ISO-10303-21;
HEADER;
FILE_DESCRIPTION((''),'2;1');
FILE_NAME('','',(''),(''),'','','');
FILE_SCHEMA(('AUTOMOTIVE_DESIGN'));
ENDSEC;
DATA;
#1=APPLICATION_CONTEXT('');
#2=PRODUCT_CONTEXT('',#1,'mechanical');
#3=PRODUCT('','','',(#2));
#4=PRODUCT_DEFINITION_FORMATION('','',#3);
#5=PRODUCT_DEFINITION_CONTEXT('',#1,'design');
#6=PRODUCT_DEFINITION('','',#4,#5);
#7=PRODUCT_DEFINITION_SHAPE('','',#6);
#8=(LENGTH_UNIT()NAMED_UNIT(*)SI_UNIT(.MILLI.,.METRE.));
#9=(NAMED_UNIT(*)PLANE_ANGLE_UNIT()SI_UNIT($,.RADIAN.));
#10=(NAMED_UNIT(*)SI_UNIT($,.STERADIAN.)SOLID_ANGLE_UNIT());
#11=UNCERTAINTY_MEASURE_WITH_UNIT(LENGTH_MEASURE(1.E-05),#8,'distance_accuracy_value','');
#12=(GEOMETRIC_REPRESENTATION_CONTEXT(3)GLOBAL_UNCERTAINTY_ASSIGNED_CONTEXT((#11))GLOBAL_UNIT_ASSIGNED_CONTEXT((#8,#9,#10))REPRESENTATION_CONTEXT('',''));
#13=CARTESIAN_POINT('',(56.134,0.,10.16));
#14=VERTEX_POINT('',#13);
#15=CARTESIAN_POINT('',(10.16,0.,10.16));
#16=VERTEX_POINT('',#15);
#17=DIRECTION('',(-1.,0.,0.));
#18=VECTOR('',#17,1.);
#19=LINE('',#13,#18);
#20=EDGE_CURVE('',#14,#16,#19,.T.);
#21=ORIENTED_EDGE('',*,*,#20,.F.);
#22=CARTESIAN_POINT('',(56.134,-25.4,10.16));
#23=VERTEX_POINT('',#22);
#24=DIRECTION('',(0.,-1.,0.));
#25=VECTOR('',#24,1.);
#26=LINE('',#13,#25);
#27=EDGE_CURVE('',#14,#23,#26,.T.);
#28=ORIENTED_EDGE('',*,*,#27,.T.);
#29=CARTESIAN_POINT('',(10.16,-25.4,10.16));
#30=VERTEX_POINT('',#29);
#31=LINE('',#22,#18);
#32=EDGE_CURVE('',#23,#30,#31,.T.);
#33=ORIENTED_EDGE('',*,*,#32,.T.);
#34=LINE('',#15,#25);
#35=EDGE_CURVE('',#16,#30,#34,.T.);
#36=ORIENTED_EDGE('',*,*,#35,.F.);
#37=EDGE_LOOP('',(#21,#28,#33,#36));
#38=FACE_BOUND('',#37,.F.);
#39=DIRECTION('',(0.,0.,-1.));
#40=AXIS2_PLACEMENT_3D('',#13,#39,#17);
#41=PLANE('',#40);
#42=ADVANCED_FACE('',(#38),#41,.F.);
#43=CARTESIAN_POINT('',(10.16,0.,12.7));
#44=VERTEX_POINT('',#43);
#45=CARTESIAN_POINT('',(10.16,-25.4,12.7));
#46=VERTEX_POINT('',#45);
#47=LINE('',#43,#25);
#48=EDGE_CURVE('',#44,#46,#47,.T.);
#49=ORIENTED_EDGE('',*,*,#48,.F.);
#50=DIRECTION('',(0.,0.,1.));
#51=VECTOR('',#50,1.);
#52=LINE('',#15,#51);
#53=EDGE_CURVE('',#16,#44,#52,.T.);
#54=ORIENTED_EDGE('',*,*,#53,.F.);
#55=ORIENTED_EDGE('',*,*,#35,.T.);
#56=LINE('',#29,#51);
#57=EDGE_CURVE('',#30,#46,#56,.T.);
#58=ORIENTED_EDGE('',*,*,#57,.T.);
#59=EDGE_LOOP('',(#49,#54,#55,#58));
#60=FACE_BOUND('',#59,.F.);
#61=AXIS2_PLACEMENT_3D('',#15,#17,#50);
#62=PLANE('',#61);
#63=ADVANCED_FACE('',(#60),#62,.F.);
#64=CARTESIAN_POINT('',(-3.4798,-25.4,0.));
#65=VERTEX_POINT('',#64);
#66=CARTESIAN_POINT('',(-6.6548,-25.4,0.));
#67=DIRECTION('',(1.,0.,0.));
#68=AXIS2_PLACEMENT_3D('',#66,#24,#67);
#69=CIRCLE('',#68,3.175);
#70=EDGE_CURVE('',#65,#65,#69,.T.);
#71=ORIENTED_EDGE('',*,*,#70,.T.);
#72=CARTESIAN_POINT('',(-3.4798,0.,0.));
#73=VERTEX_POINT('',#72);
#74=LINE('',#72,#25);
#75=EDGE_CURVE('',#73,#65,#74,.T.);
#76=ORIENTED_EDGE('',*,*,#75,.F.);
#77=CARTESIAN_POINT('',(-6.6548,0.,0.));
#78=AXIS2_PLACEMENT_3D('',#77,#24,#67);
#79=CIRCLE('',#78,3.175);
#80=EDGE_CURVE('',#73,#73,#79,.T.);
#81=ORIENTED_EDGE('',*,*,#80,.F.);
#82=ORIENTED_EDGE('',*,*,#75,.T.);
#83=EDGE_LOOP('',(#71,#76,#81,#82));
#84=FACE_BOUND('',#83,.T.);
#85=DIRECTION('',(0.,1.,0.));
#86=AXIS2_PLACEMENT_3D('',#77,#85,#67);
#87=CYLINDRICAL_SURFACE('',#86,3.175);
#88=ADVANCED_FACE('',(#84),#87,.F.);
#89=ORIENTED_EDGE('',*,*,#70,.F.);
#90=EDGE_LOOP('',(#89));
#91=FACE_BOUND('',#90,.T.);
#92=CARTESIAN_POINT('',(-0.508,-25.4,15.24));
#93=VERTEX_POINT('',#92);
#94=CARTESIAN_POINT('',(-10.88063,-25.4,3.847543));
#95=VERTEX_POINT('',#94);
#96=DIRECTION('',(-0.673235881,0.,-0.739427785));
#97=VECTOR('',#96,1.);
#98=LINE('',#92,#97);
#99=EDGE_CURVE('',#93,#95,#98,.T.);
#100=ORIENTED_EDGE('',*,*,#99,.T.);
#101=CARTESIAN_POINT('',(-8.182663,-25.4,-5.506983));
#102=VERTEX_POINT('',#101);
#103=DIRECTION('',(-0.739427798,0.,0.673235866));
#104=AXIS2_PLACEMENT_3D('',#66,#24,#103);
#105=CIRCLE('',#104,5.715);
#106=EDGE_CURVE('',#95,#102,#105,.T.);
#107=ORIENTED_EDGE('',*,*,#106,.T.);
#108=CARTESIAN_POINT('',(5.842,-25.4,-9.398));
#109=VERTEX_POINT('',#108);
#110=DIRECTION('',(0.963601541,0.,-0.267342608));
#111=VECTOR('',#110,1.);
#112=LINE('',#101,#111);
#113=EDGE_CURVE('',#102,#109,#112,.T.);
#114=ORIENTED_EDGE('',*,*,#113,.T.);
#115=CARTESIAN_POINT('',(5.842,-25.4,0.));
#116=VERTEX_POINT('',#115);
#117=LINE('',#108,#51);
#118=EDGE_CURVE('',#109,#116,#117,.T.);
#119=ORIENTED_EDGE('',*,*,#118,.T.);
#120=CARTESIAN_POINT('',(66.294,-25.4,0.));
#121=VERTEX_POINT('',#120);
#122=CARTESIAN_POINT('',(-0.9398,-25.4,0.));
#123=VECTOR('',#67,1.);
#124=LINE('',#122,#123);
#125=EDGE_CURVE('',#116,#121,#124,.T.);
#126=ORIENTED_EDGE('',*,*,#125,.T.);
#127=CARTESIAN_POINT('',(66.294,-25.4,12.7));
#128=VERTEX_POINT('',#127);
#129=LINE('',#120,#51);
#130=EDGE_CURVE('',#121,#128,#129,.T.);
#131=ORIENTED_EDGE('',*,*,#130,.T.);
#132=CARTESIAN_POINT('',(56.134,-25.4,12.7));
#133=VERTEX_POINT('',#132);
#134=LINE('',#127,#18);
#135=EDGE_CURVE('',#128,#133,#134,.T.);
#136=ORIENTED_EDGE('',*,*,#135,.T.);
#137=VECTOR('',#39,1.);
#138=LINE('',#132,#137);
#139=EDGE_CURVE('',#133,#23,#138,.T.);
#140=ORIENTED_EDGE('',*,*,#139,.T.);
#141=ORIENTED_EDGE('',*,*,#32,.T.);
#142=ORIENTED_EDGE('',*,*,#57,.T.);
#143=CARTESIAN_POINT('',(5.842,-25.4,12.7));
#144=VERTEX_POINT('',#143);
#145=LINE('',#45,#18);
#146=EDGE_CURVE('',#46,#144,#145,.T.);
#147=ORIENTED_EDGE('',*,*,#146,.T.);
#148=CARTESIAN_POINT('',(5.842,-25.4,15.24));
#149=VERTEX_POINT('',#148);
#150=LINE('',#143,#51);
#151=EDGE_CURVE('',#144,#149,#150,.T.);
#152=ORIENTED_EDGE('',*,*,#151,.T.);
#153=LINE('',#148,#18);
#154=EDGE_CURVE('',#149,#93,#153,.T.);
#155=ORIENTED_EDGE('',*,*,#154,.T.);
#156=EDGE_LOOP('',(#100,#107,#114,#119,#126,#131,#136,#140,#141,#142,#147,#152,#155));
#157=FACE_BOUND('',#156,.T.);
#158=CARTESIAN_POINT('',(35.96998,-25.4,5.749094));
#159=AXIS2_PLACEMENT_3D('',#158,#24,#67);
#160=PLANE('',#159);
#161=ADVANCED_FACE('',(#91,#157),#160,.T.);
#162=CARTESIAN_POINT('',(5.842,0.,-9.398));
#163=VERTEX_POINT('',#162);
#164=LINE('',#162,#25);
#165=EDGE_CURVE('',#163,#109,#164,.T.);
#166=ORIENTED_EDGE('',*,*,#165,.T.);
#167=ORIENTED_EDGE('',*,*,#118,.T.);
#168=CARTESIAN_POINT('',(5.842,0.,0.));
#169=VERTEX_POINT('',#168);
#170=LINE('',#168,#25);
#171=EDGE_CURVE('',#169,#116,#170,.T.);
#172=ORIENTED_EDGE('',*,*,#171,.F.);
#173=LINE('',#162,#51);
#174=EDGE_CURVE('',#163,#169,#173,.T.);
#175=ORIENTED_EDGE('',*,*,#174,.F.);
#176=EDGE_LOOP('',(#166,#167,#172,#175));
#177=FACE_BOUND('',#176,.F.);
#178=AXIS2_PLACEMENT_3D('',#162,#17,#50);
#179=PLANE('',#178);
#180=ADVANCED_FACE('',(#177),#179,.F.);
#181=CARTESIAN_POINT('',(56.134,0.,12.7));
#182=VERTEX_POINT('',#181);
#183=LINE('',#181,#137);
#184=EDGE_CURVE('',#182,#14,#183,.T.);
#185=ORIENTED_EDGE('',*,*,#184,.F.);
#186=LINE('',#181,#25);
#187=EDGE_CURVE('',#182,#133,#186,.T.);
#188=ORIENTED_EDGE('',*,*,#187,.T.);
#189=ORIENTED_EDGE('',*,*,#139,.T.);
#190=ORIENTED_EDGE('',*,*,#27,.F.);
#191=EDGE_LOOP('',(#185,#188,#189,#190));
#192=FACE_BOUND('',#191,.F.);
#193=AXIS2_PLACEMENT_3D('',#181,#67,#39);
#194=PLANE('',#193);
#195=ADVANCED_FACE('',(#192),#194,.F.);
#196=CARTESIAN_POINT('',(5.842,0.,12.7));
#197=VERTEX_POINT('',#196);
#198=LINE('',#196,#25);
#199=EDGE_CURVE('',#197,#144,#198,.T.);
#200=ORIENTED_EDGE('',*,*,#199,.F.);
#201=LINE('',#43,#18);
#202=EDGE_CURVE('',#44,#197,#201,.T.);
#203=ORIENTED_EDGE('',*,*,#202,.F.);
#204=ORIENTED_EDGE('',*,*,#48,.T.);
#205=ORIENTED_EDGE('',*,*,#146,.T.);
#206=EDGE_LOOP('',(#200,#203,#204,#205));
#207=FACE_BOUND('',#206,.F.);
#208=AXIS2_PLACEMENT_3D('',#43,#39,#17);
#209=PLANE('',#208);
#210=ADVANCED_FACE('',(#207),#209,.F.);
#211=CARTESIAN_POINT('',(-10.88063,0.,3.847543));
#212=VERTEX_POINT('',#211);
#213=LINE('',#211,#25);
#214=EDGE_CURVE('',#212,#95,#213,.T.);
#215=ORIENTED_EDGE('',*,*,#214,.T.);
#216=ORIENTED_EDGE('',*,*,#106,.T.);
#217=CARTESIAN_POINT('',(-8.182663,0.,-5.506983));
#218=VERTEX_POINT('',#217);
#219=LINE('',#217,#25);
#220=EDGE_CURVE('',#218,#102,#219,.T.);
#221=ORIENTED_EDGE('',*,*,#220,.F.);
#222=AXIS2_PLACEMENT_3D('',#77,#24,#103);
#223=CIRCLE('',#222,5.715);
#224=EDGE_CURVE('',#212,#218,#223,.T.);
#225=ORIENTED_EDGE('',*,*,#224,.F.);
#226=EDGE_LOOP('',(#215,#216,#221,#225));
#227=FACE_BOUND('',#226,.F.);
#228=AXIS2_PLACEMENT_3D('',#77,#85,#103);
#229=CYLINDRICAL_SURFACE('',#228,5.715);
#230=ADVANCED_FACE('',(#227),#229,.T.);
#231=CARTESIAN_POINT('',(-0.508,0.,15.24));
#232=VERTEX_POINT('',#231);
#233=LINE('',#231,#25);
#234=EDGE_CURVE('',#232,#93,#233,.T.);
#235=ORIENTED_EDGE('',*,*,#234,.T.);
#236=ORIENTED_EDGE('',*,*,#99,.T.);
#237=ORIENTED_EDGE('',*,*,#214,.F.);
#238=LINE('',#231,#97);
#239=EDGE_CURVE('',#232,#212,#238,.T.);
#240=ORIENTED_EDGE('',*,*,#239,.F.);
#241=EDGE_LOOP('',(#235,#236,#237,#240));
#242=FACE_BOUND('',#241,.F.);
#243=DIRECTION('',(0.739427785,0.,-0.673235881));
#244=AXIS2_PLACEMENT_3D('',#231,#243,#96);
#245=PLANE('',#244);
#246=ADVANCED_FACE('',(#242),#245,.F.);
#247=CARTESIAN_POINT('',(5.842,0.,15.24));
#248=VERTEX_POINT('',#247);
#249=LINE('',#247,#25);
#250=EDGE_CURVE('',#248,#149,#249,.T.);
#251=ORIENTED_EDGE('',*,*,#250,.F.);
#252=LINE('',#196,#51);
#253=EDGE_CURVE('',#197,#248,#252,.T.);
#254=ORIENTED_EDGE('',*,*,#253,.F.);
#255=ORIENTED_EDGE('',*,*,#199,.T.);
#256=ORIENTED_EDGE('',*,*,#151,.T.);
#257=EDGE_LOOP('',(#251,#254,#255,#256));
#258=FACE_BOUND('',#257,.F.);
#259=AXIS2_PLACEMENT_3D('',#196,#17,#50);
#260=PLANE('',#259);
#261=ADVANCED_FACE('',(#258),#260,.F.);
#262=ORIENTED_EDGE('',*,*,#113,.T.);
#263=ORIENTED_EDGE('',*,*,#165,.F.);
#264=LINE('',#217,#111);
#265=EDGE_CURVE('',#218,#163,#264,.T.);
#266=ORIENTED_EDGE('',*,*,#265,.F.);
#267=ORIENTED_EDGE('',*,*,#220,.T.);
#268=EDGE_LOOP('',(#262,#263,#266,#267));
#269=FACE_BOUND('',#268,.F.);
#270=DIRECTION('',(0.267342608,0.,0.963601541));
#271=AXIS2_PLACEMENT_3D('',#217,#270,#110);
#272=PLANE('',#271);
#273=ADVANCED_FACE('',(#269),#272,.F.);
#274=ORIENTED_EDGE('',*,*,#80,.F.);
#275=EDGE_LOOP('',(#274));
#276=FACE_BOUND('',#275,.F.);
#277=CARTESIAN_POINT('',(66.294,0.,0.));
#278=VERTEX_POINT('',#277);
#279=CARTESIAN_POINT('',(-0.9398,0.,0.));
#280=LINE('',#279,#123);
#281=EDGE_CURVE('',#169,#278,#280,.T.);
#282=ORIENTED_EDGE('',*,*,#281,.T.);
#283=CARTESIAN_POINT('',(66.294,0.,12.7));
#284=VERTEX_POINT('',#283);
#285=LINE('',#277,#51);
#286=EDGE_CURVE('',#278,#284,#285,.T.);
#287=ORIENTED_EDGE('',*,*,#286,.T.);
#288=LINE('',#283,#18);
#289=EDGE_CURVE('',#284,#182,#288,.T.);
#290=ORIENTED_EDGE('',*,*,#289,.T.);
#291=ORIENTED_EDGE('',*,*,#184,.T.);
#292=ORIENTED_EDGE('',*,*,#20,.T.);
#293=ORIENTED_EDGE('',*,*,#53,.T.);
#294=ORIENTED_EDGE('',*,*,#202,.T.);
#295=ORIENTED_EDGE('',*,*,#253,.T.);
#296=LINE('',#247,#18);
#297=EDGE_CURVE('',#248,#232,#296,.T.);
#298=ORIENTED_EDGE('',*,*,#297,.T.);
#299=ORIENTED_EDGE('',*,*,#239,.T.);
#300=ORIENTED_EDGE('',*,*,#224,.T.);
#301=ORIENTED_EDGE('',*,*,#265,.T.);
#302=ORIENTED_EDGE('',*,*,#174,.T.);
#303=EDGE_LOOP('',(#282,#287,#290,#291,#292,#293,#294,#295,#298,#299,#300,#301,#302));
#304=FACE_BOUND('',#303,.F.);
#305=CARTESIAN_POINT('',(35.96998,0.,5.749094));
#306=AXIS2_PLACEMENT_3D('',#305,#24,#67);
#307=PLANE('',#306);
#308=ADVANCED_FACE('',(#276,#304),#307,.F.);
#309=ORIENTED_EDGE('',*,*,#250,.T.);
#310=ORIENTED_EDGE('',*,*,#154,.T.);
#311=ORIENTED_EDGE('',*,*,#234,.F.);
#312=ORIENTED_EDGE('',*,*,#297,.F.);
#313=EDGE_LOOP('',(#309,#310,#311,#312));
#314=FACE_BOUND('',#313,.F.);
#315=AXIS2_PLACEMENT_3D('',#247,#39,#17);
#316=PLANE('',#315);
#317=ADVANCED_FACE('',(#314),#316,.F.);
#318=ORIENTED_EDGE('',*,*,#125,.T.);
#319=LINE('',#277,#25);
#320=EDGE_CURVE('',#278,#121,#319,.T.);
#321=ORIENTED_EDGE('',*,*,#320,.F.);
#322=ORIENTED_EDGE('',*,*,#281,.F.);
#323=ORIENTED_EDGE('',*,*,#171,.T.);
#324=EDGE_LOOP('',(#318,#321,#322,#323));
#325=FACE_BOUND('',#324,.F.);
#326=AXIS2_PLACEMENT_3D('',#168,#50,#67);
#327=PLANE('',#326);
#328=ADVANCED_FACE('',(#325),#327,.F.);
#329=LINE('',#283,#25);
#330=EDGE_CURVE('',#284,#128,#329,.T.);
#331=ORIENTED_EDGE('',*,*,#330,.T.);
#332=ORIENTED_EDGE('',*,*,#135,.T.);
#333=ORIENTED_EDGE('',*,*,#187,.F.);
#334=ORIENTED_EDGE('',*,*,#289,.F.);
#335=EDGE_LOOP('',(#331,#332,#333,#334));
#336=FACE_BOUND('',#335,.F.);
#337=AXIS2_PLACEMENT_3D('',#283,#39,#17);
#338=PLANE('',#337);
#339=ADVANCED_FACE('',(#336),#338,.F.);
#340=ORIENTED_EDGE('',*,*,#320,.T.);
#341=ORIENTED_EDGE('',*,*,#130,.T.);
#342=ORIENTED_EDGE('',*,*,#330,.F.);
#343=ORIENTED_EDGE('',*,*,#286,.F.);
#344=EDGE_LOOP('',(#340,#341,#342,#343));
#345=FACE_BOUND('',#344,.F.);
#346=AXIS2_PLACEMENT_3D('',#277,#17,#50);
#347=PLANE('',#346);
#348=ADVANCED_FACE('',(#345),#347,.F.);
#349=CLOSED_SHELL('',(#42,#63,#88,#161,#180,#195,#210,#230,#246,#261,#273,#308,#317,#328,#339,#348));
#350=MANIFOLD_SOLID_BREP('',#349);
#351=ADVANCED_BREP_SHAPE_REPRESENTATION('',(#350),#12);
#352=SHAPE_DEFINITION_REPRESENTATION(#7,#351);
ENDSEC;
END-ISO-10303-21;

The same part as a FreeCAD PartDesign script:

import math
import FreeCAD as App
import Part
import Sketcher
from FreeCAD import Vector
Q = App.Units.Quantity

doc = App.newDocument("Part")
params = doc.addObject("Spreadsheet::Sheet", "Params")
for row, (alias, value) in enumerate([
    ("sketch1_diameter", "0.25 in"),
    ("sketch1_width", "0.4 in"),
    ("sketch1_height", "0.5 in"),
    ("sketch1_height2", "0.1 in"),
    ("sketch1_radius", "0.225 in"),
    ("pad1_length", "1 in"),
], start=1):
    params.set(f"A{row}", alias)
    params.set(f"B{row}", "=" + value)
    params.setAlias(f"B{row}", alias)

body = doc.addObject("PartDesign::Body", "Body")

sketch1 = body.newObject("Sketcher::SketchObject", "Sketch")
sketch1.AttachmentSupport = (doc.getObject("XZ_Plane"), [""])
sketch1.MapMode = "FlatFace"
sketch1.addGeometry(Part.LineSegment(Vector(66.3, 0, 0), Vector(66.3, 12.7, 0)), False)
sketch1.addGeometry(Part.LineSegment(Vector(66.3, 12.7, 0), Vector(56.1, 12.7, 0)), False)
sketch1.addGeometry(Part.LineSegment(Vector(56.1, 12.7, 0), Vector(56.1, 10.2, 0)), False)
sketch1.addGeometry(Part.LineSegment(Vector(56.1, 10.2, 0), Vector(10.2, 10.2, 0)), False)
sketch1.addGeometry(Part.LineSegment(Vector(10.2, 10.2, 0), Vector(10.2, 12.7, 0)), False)
sketch1.addGeometry(Part.LineSegment(Vector(10.2, 12.7, 0), Vector(5.8, 12.7, 0)), False)
sketch1.addGeometry(Part.LineSegment(Vector(5.8, 12.7, 0), Vector(5.8, 15.2, 0)), False)
sketch1.addGeometry(Part.LineSegment(Vector(5.8, 15.2, 0), Vector(-0.5, 15.2, 0)), False)
sketch1.addGeometry(Part.LineSegment(Vector(-0.5, 15.2, 0), Vector(-10.9, 3.8, 0)), False)
sketch1.addGeometry(Part.ArcOfCircle(Part.Circle(Vector(-6.7, 0, 0), Vector(0, 0, 1), 5.7), math.radians(138), math.radians(254)), False)
sketch1.addGeometry(Part.LineSegment(Vector(-8.2, -5.5, 0), Vector(5.8, -9.4, 0)), False)
sketch1.addGeometry(Part.LineSegment(Vector(5.8, -9.4, 0), Vector(5.8, 0, 0)), False)
sketch1.addGeometry(Part.LineSegment(Vector(5.8, 0, 0), Vector(66.3, 0, 0)), False)
sketch1.addGeometry(Part.Circle(Vector(-6.7, 0, 0), Vector(0, 0, 1), 3.2), False)
sketch1.addConstraint(Sketcher.Constraint("Coincident", 0, 2, 1, 1))
sketch1.addConstraint(Sketcher.Constraint("Coincident", 1, 2, 2, 1))
sketch1.addConstraint(Sketcher.Constraint("Coincident", 2, 2, 3, 1))
sketch1.addConstraint(Sketcher.Constraint("Coincident", 3, 2, 4, 1))
sketch1.addConstraint(Sketcher.Constraint("Coincident", 4, 2, 5, 1))
sketch1.addConstraint(Sketcher.Constraint("Coincident", 5, 2, 6, 1))
sketch1.addConstraint(Sketcher.Constraint("Coincident", 6, 2, 7, 1))
sketch1.addConstraint(Sketcher.Constraint("Coincident", 7, 2, 8, 1))
sketch1.addConstraint(Sketcher.Constraint("Tangent", 8, 2, 9, 1))
sketch1.addConstraint(Sketcher.Constraint("Tangent", 9, 2, 10, 1))
sketch1.addConstraint(Sketcher.Constraint("Coincident", 10, 2, 11, 1))
sketch1.addConstraint(Sketcher.Constraint("Coincident", 11, 2, 12, 1))
sketch1.addConstraint(Sketcher.Constraint("Coincident", 12, 2, 0, 1))
sketch1.addConstraint(Sketcher.Constraint("Vertical", 0))
sketch1.addConstraint(Sketcher.Constraint("Horizontal", 1))
sketch1.addConstraint(Sketcher.Constraint("Vertical", 2))
sketch1.addConstraint(Sketcher.Constraint("Horizontal", 3))
sketch1.addConstraint(Sketcher.Constraint("Vertical", 4))
sketch1.addConstraint(Sketcher.Constraint("Horizontal", 5))
sketch1.addConstraint(Sketcher.Constraint("Vertical", 6))
sketch1.addConstraint(Sketcher.Constraint("Horizontal", 7))
sketch1.addConstraint(Sketcher.Constraint("Vertical", 11))
sketch1.addConstraint(Sketcher.Constraint("Horizontal", 12))
sketch1.addConstraint(Sketcher.Constraint("Coincident", 13, 3, 9, 3))
sketch1.addConstraint(Sketcher.Constraint("PointOnObject", 9, 3, -1))
sketch1.addConstraint(Sketcher.Constraint("PointOnObject", 11, 2, -1))
sketch1.addConstraint(Sketcher.Constraint("Horizontal", 1, 2, 4, 2))
sketch1.addConstraint(Sketcher.Constraint("Vertical", 6, 2, 10, 2))
sketch1.addConstraint(Sketcher.Constraint("Equal", 4, 6))
sketch1.addConstraint(Sketcher.Constraint("Diameter", 13, Q("0.25 in")))
sketch1.addConstraint(Sketcher.Constraint("DistanceX", 1, 2, 1, 1, Q("0.4 in")))
sketch1.addConstraint(Sketcher.Constraint("DistanceY", 0, 1, 0, 2, Q("0.5 in")))
sketch1.addConstraint(Sketcher.Constraint("DistanceY", 2, 2, 2, 1, Q("0.1 in")))
sketch1.addConstraint(Sketcher.Constraint("Radius", 9, Q("0.225 in")))
sketch1.addConstraint(Sketcher.Constraint("DistanceX", 3, 2, 3, 1, Q("1.81 in")))
sketch1.addConstraint(Sketcher.Constraint("DistanceX", 5, 2, 5, 1, Q("0.17 in")))
sketch1.addConstraint(Sketcher.Constraint("DistanceX", 7, 2, 7, 1, Q("0.25 in")))
sketch1.addConstraint(Sketcher.Constraint("DistanceY", 11, 1, 11, 2, Q("0.37 in")))
sketch1.addConstraint(Sketcher.Constraint("DistanceX", -1, 1, 3, 2, Q("0.4 in")))
sketch1.addConstraint(Sketcher.Constraint("DistanceX", 9, 3, -1, 1, Q("0.262 in")))
sketch1.setExpression("Constraints[29]", "Params.sketch1_diameter")
sketch1.setExpression("Constraints[30]", "Params.sketch1_width")
sketch1.setExpression("Constraints[31]", "Params.sketch1_height")
sketch1.setExpression("Constraints[32]", "Params.sketch1_height2")
sketch1.setExpression("Constraints[33]", "Params.sketch1_radius")
pad1 = body.newObject("PartDesign::Pad", "Pad")
pad1.Profile = sketch1
pad1.setExpression("Length", "Params.pad1_length")

doc.recompute()
